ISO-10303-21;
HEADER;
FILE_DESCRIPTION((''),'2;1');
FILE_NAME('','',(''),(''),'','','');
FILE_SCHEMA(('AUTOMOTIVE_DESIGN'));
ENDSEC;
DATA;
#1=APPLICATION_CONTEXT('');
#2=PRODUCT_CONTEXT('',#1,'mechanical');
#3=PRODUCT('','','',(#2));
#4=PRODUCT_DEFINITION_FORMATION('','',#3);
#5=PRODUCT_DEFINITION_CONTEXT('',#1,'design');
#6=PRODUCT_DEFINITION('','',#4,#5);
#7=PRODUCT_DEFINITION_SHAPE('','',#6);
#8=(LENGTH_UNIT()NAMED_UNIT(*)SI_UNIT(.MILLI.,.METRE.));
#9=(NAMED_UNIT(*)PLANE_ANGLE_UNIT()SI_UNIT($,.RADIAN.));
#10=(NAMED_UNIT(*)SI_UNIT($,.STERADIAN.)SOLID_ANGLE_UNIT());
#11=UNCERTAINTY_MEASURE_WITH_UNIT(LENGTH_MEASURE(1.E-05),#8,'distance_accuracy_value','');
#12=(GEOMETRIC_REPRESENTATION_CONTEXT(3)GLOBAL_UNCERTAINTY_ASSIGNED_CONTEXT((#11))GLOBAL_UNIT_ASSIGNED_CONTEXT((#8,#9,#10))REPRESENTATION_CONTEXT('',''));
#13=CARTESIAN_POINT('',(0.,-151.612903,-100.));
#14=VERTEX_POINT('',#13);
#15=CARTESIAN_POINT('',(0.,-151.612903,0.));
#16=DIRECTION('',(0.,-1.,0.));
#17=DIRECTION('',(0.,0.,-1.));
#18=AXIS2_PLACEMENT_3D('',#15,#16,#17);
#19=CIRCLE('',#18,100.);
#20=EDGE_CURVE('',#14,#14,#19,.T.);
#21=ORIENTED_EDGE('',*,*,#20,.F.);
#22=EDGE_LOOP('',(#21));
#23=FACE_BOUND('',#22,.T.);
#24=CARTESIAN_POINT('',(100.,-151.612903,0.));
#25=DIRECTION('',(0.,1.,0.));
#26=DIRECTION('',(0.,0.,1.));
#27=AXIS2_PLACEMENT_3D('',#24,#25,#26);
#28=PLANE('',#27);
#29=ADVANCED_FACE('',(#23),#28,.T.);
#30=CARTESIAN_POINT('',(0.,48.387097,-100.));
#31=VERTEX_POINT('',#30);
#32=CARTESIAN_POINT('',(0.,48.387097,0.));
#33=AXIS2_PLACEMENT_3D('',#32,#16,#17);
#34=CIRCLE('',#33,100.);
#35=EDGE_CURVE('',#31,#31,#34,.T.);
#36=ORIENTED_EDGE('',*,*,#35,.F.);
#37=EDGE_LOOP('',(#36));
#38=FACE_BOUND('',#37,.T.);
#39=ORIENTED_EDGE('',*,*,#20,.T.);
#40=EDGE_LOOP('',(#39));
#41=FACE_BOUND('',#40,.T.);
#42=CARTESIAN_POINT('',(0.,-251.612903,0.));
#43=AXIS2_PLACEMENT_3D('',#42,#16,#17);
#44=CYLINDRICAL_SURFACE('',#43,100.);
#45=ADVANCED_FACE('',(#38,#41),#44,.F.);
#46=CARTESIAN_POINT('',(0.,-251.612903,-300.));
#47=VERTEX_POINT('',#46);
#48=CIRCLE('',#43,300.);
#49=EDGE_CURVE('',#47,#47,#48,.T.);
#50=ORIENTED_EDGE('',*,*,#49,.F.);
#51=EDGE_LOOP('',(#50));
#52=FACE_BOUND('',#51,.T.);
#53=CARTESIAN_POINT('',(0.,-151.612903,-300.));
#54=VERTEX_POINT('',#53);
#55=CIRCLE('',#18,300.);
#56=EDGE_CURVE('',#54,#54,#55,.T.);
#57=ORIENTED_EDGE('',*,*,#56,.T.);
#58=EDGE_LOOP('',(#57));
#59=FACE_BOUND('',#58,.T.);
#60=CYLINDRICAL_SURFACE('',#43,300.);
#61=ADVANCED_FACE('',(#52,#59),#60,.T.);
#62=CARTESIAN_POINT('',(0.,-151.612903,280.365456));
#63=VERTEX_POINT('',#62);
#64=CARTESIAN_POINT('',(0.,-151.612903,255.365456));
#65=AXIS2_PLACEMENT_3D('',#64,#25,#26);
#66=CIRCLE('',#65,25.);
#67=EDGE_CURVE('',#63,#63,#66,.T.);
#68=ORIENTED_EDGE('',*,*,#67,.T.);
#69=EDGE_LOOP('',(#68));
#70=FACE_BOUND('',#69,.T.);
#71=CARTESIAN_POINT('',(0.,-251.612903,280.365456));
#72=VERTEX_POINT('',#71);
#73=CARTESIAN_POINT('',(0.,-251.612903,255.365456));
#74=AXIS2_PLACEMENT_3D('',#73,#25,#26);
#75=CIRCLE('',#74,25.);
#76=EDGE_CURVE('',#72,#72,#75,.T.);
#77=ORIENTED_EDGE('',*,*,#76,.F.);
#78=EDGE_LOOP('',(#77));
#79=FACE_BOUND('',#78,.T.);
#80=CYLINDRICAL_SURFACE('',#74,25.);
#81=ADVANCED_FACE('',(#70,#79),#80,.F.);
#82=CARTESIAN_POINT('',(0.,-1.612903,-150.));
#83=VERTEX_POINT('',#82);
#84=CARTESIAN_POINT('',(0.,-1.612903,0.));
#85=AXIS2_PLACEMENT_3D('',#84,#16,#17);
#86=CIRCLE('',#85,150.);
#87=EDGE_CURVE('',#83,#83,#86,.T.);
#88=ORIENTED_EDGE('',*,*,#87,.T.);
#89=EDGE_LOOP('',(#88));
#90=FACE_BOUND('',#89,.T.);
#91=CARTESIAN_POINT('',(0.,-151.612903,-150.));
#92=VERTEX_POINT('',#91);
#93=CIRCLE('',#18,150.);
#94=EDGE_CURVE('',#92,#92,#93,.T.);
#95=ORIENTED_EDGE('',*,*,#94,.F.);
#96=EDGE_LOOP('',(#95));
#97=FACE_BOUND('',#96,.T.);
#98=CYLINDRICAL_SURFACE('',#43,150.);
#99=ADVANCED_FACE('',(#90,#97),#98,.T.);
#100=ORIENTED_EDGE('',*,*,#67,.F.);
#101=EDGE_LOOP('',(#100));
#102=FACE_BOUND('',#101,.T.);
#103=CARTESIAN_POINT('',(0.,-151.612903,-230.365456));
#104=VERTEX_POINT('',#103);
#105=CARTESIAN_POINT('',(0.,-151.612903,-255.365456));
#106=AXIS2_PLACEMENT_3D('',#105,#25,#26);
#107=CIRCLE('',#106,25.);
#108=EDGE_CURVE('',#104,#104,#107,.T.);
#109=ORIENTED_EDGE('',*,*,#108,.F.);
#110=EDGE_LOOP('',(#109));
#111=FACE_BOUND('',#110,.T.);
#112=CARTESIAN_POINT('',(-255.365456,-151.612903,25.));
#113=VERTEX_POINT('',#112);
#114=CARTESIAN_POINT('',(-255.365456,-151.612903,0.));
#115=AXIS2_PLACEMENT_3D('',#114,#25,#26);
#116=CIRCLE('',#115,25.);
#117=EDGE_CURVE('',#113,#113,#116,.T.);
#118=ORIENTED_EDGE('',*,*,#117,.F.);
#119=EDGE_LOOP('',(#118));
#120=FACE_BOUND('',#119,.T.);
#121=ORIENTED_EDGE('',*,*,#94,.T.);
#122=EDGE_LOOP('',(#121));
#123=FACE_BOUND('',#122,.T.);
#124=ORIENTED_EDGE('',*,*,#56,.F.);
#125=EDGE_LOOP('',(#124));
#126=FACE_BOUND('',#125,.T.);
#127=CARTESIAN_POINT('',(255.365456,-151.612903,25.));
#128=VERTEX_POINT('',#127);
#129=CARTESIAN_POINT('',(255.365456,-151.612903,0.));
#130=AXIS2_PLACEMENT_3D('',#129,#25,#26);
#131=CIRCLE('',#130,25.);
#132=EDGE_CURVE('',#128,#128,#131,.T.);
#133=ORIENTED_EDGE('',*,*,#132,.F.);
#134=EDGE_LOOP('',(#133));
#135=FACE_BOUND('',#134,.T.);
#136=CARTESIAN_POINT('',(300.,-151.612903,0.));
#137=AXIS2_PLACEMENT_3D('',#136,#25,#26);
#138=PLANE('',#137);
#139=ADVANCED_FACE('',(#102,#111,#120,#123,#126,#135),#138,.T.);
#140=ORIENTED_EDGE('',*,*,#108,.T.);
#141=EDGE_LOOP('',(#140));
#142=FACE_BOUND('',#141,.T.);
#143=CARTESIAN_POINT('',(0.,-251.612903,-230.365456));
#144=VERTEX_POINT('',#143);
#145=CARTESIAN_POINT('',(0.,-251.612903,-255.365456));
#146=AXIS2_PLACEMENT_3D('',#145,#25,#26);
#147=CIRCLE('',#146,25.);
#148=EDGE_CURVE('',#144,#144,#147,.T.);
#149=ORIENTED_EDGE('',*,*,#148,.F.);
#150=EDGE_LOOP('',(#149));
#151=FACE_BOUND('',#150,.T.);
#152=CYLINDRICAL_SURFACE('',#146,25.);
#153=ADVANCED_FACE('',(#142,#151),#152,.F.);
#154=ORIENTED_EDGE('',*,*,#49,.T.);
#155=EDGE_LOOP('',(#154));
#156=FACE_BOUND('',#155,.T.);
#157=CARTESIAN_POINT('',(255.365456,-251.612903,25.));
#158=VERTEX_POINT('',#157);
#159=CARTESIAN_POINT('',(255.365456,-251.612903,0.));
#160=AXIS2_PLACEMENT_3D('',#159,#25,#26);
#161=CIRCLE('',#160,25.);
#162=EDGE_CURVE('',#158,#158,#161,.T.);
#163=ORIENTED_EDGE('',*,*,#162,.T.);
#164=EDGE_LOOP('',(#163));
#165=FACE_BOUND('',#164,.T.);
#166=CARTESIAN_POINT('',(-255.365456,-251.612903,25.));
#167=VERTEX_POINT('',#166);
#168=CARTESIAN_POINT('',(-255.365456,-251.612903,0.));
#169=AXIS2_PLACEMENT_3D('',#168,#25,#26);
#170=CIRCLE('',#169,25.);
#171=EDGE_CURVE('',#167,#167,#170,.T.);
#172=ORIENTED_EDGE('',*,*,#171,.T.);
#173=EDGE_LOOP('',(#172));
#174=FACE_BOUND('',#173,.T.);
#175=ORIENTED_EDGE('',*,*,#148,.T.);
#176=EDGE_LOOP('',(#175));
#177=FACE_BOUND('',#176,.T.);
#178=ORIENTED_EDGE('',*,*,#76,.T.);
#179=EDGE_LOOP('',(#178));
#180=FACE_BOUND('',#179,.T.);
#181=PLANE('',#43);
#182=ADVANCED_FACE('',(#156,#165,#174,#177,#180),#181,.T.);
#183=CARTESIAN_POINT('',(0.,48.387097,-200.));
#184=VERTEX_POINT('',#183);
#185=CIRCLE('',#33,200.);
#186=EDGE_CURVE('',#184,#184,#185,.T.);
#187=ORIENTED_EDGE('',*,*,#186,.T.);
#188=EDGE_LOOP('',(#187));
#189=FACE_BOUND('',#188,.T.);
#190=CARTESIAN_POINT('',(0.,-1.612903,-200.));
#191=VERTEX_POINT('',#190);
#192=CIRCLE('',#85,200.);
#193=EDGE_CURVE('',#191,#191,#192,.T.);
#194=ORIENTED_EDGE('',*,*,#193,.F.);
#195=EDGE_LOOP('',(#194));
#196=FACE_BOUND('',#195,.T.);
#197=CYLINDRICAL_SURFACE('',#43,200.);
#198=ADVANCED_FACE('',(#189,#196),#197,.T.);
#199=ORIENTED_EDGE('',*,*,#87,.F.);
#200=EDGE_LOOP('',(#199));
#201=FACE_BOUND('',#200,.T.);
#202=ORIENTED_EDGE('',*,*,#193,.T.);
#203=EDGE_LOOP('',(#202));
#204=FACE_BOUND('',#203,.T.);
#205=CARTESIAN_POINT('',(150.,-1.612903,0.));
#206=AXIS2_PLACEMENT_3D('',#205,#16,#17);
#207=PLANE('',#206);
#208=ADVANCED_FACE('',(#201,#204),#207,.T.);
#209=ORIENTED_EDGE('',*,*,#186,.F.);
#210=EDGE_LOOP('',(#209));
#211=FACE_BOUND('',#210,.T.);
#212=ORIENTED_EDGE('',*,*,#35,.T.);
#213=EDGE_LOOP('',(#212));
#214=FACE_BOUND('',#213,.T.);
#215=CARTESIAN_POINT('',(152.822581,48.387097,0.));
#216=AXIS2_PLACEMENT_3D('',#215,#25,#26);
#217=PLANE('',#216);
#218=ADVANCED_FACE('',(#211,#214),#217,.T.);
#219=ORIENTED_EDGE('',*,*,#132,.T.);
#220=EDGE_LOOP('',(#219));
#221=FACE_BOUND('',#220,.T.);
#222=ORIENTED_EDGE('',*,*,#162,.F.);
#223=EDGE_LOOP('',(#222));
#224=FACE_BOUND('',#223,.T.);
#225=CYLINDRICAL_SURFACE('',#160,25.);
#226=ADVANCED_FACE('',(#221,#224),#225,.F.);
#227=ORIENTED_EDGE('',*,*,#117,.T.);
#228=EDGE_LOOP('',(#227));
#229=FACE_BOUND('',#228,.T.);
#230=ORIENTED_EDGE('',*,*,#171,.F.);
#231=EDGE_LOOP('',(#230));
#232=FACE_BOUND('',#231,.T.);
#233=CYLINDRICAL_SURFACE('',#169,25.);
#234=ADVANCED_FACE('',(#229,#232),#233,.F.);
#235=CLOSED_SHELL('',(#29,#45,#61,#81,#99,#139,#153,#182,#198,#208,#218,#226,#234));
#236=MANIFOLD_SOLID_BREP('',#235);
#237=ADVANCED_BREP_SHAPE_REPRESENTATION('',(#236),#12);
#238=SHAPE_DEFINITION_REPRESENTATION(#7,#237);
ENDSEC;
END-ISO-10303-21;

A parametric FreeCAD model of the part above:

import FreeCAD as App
import Part
import Sketcher

V = App.Vector

doc = App.newDocument("Part")
params = doc.addObject("Spreadsheet::Sheet", "Params")
for row, (alias, value) in enumerate([
    ("sketch1_width", "300 mm"),
    ("sketch1_width2", "150 mm"),
    ("sketch1_width3", "50 mm"),
    ("revolution_angle", "360 deg"),
    ("sketch2_diameter", "50 mm"),
    ("pocket1_length", "100 mm"),
], start=1):
    params.set(f"A{row}", alias)
    params.set(f"B{row}", "=" + value)
    params.setAlias(f"B{row}", alias)

body = doc.addObject("PartDesign::Body", "Body")

# Sketch on XY plane
sketch1 = doc.addObject("Sketcher::SketchObject", "Sketch")
body.addObject(sketch1)
sketch1.AttachmentSupport = (doc.XY_Plane, [""])
sketch1.MapMode = "FlatFace"
sketch1.addGeometry([
    Part.LineSegment(V(0, -152, 0), V(0, -252, 0)),  # 0
    Part.LineSegment(V(0, -252, 0), V(300, -252, 0)),  # 1
    Part.LineSegment(V(300, -252, 0), V(300, -152, 0)),  # 2
    Part.LineSegment(V(300, -152, 0), V(150, -152, 0)),  # 3
    Part.LineSegment(V(150, -152, 0), V(150, -2, 0)),  # 4
    Part.LineSegment(V(150, -2, 0), V(200, -2, 0)),  # 5
    Part.LineSegment(V(200, -2, 0), V(200, 48, 0)),  # 6
    Part.LineSegment(V(200, 48, 0), V(100, 48, 0)),  # 7
    Part.LineSegment(V(100, 48, 0), V(100, -152, 0)),  # 8
    Part.LineSegment(V(100, -152, 0), V(0, -152, 0)),  # 9
], False)
sketch1.addConstraint([
    Sketcher.Constraint("Coincident", 0, 2, 1, 1),
    Sketcher.Constraint("Coincident", 1, 2, 2, 1),
    Sketcher.Constraint("Coincident", 2, 2, 3, 1),
    Sketcher.Constraint("Coincident", 3, 2, 4, 1),
    Sketcher.Constraint("Coincident", 4, 2, 5, 1),
    Sketcher.Constraint("Coincident", 5, 2, 6, 1),
    Sketcher.Constraint("Coincident", 6, 2, 7, 1),
    Sketcher.Constraint("Coincident", 7, 2, 8, 1),
    Sketcher.Constraint("Coincident", 8, 2, 9, 1),
    Sketcher.Constraint("Coincident", 9, 2, 0, 1),
    Sketcher.Constraint("Vertical", 0),
    Sketcher.Constraint("Horizontal", 1),
    Sketcher.Constraint("Vertical", 2),
    Sketcher.Constraint("Horizontal", 3),
    Sketcher.Constraint("Vertical", 4),
    Sketcher.Constraint("Horizontal", 5),
    Sketcher.Constraint("Vertical", 6),
    Sketcher.Constraint("Horizontal", 7),
    Sketcher.Constraint("Vertical", 8),
    Sketcher.Constraint("Horizontal", 9),
    Sketcher.Constraint("PointOnObject", 0, 2, -2),
    Sketcher.Constraint("Horizontal", 3, 2, 8, 2),
    Sketcher.Constraint("Equal", 7, 9),
    Sketcher.Constraint("Equal", 9, 0),
    Sketcher.Constraint("Equal", 3, 4),
    Sketcher.Constraint("Equal", 5, 6),
    Sketcher.Constraint("DistanceX", 1, 1, 1, 2, 300.0),
    Sketcher.Constraint("DistanceX", 3, 2, 3, 1, 150.0),
    Sketcher.Constraint("DistanceX", 5, 1, 5, 2, 50.0),
    Sketcher.Constraint("DistanceY", 0, 2, -1, 1, 251.612903),
])
sketch1.setExpression("Constraints[26]", "Params.sketch1_width")
sketch1.setExpression("Constraints[27]", "Params.sketch1_width2")
sketch1.setExpression("Constraints[28]", "Params.sketch1_width3")
revolution = doc.addObject("PartDesign::Revolution", "Revolution")
body.addObject(revolution)
revolution.Profile = sketch1
revolution.ReferenceAxis = (sketch1, ["V_Axis"])
revolution.setExpression("Angle", "Params.revolution_angle")

# Sketch on XZ plane
sketch2 = doc.addObject("Sketcher::SketchObject", "Sketch001")
body.addObject(sketch2)
sketch2.AttachmentSupport = (doc.XZ_Plane, [""])
sketch2.MapMode = "FlatFace"
sketch2.AttachmentOffset = App.Placement(V(0, 0, 151.612903), App.Rotation())
sketch2.addGeometry([
    Part.Circle(V(0, -255, 0), V(0, 0, 1), 25),
    Part.Circle(V(255, 0, 0), V(0, 0, 1), 25),
    Part.Circle(V(0, 255, 0), V(0, 0, 1), 25),
    Part.Circle(V(-255, 0, 0), V(0, 0, 1), 25),
], False)
sketch2.addConstraint([
    Sketcher.Constraint("Equal", 0, 1),
    Sketcher.Constraint("Equal", 1, 2),
    Sketcher.Constraint("Equal", 2, 3),
    Sketcher.Constraint("Symmetric", 0, 3, 2, 3, -1, 1),
    Sketcher.Constraint("Symmetric", 1, 3, 3, 3, -1, 1),
    Sketcher.Constraint("PointOnObject", 0, 3, -2),
    Sketcher.Constraint("PointOnObject", 1, 3, -1),
    Sketcher.Constraint("Diameter", 0, 50.0),
    Sketcher.Constraint("DistanceY", 0, 3, 2, 3, 510.730911),
    Sketcher.Constraint("DistanceX", 3, 3, 1, 3, 510.730911),
])
sketch2.setExpression("Constraints[7]", "Params.sketch2_diameter")
pocket1 = doc.addObject("PartDesign::Pocket", "Pocket")
body.addObject(pocket1)
pocket1.Profile = sketch2
pocket1.setExpression("Length", "Params.pocket1_length")
pocket1.Reversed = True

doc.recompute()
